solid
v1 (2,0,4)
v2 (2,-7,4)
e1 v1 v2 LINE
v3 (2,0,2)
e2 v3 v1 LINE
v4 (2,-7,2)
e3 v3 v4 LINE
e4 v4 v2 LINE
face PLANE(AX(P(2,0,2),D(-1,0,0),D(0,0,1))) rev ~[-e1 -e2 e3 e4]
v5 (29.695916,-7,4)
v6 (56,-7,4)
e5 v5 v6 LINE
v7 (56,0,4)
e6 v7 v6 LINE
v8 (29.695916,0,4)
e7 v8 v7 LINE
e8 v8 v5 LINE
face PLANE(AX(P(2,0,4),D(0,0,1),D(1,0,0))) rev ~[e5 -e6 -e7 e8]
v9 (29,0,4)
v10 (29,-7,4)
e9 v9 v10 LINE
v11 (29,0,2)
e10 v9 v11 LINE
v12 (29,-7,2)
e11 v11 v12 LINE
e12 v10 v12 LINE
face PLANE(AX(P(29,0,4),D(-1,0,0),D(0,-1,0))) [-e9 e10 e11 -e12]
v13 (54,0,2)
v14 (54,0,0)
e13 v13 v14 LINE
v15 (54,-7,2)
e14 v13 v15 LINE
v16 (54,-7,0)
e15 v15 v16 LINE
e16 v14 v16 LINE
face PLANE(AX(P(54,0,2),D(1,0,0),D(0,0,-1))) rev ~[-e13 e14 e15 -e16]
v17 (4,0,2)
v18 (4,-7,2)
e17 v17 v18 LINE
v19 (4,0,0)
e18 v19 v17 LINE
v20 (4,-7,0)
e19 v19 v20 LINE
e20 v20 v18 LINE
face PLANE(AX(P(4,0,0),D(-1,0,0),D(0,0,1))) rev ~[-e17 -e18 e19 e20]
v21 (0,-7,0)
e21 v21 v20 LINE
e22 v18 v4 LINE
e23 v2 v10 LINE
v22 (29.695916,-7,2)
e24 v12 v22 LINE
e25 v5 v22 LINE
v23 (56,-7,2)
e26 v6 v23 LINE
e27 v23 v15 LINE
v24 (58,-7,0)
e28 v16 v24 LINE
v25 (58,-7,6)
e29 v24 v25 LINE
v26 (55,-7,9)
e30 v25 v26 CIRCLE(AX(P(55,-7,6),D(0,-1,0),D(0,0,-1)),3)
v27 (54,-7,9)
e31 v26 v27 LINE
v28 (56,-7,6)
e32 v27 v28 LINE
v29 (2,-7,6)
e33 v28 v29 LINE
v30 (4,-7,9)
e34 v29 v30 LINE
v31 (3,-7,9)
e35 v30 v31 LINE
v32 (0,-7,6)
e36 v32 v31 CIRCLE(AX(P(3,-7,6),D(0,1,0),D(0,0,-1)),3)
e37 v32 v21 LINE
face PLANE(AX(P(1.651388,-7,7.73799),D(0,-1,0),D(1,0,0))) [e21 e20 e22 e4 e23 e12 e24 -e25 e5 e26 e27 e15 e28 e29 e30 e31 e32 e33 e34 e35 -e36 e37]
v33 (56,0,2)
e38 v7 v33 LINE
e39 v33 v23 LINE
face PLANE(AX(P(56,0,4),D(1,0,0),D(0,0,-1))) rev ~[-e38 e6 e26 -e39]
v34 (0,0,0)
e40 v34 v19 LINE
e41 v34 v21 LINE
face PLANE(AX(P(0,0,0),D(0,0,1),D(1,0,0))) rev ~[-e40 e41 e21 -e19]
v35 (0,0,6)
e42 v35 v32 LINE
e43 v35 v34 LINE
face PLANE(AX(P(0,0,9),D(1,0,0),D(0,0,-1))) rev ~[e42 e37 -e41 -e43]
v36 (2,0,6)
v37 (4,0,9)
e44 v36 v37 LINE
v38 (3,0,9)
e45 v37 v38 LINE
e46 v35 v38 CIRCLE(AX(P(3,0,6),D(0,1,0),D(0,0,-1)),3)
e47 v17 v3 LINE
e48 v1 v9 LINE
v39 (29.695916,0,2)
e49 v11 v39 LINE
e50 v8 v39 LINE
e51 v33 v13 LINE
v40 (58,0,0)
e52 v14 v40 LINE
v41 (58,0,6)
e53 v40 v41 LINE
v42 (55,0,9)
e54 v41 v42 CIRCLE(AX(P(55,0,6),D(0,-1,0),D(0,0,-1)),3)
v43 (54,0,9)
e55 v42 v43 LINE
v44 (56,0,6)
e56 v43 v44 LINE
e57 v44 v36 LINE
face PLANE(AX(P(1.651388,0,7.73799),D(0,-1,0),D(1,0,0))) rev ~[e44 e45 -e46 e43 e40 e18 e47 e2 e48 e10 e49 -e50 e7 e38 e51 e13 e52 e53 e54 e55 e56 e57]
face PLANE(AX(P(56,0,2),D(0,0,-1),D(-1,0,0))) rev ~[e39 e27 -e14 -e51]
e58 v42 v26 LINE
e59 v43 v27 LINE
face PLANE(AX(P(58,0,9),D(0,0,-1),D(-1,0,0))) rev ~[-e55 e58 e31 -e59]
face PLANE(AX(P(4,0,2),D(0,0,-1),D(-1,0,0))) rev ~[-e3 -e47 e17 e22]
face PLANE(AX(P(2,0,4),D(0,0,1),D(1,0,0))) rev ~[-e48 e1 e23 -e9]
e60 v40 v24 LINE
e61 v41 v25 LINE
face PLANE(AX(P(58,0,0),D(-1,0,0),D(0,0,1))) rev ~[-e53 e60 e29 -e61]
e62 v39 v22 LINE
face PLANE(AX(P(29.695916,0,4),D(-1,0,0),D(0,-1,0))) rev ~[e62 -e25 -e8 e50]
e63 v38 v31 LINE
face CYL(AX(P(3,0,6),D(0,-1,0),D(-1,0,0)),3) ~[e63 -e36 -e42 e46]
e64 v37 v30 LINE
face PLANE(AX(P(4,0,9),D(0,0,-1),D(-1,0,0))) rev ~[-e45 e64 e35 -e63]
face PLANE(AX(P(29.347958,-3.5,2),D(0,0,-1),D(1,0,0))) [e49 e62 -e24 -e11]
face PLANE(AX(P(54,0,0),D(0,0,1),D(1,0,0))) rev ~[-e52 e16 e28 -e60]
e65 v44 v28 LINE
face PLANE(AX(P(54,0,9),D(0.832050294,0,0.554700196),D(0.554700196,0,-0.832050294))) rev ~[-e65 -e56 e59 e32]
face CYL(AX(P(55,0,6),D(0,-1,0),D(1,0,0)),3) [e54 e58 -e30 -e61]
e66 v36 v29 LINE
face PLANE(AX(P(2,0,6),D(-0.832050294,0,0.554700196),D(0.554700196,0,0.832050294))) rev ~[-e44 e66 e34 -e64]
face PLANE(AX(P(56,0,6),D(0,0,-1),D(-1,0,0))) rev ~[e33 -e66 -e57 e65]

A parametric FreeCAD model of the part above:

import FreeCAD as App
import Part
import Sketcher
Q = App.Units.Quantity


def edges_at(feature, points):
    """Names of the edges that pass closest to the given points."""
    edges = feature.Shape.Edges
    near = lambda p: min(range(len(edges)), key=lambda i: edges[i].distToShape(Part.Vertex(*p))[0])
    return sorted({f"Edge{near(p) + 1}" for p in points})


def add_polygon(sketch, points):
    """Adds a closed chain of lines whose ends are joined by coincident constraints."""
    first, n = sketch.GeometryCount, len(points)
    for a, b in zip(points, points[1:] + points[:1]):
        sketch.addGeometry(Part.LineSegment(App.Vector(*a, 0), App.Vector(*b, 0)), False)
    for i in range(n):
        sketch.addConstraint(Sketcher.Constraint("Coincident", first + i, 2, first + (i + 1) % n, 1))

doc = App.newDocument("Part")
body = doc.addObject("PartDesign::Body", "Body")

# Sketch on XZ plane
sketch1 = body.newObject("Sketcher::SketchObject", "Sketch")
sketch1.AttachmentSupport = (doc.getObject("XZ_Plane"), [""])
sketch1.MapMode = "FlatFace"
add_polygon(sketch1, [(0, 9), (0, 0), (4, 0), (4, 2), (2, 2), (2, 4), (56, 4), (56, 2), (54, 2), (54, 0), (58, 0), (58, 9), (54, 9), (56, 6), (2, 6), (4, 9)])  # lines 0-15
sketch1.addConstraint(Sketcher.Constraint("Vertical", 0))
sketch1.addConstraint(Sketcher.Constraint("Horizontal", 1))
sketch1.addConstraint(Sketcher.Constraint("Vertical", 2))
sketch1.addConstraint(Sketcher.Constraint("Horizontal", 3))
sketch1.addConstraint(Sketcher.Constraint("Vertical", 4))
sketch1.addConstraint(Sketcher.Constraint("Horizontal", 5))
sketch1.addConstraint(Sketcher.Constraint("Vertical", 6))
sketch1.addConstraint(Sketcher.Constraint("Horizontal", 7))
sketch1.addConstraint(Sketcher.Constraint("Vertical", 8))
sketch1.addConstraint(Sketcher.Constraint("Horizontal", 9))
sketch1.addConstraint(Sketcher.Constraint("Vertical", 10))
sketch1.addConstraint(Sketcher.Constraint("Horizontal", 11))
sketch1.addConstraint(Sketcher.Constraint("Horizontal", 13))
sketch1.addConstraint(Sketcher.Constraint("Horizontal", 15))
sketch1.addConstraint(Sketcher.Constraint("Coincident", 0, 2, -1, 1))
sketch1.addConstraint(Sketcher.Constraint("PointOnObject", 8, 2, -1))
sketch1.addConstraint(Sketcher.Constraint("Horizontal", 3, 2, 6, 2))
sketch1.addConstraint(Sketcher.Constraint("Horizontal", 11, 2, 14, 2))
sketch1.addConstraint(Sketcher.Constraint("Vertical", 8, 2, 11, 2))
sketch1.addConstraint(Sketcher.Constraint("Vertical", 6, 2, 12, 2))
sketch1.addConstraint(Sketcher.Constraint("Vertical", 4, 2, 13, 2))
sketch1.addConstraint(Sketcher.Constraint("Vertical", 2, 2, 14, 2))
sketch1.addConstraint(Sketcher.Constraint("Equal", 3, 7))
sketch1.addConstraint(Sketcher.Constraint("Equal", 1, 9))
sketch1.addConstraint(Sketcher.Constraint("Equal", 7, 2))
sketch1.addConstraint(Sketcher.Constraint("Equal", 2, 4))
sketch1.addConstraint(Sketcher.Constraint("DistanceX", 1, 1, 1, 2, Q("4 mm")))
sketch1.addConstraint(Sketcher.Constraint("DistanceX", 3, 2, 3, 1, Q("2 mm")))
sketch1.addConstraint(Sketcher.Constraint("DistanceX", 5, 1, 5, 2, Q("54 mm")))
sketch1.addConstraint(Sketcher.Constraint("DistanceY", 0, 2, 0, 1, Q("9 mm")))
sketch1.addConstraint(Sketcher.Constraint("DistanceY", -1, 1, 12, 2, Q("6 mm")))
pad1 = body.newObject("PartDesign::Pad", "Pad")
pad1.Profile = sketch1
pad1.Length = 7
doc.recompute()

fillet = body.newObject("PartDesign::Fillet", "Fillet")
fillet.Base = (pad1, edges_at(pad1, [(0, -3.5, 9), (58, -3.5, 9)]))
fillet.Radius = 3

# Sketch on XY plane
sketch2 = body.newObject("Sketcher::SketchObject", "Sketch001")
sketch2.AttachmentSupport = (doc.getObject("XY_Plane"), [""])
sketch2.MapMode = "FlatFace"
sketch2.AttachmentOffset = App.Placement(App.Vector(0, 0, 4), App.Rotation())
add_polygon(sketch2, [(29, -7), (29, 0), (29.695916, 0), (29.695916, -7)])  # lines 0-3
sketch2.addConstraint(Sketcher.Constraint("Vertical", 0))
sketch2.addConstraint(Sketcher.Constraint("Horizontal", 1))
sketch2.addConstraint(Sketcher.Constraint("Vertical", 2))
sketch2.addConstraint(Sketcher.Constraint("Horizontal", 3))
sketch2.addConstraint(Sketcher.Constraint("PointOnObject", 0, 2, -1))
sketch2.addConstraint(Sketcher.Constraint("DistanceY", 0, 1, 0, 2, Q("7 mm")))
sketch2.addConstraint(Sketcher.Constraint("DistanceX", -1, 1, 0, 2, Q("29 mm")))
sketch2.addConstraint(Sketcher.Constraint("DistanceX", 1, 1, 1, 2, Q("0.695917 mm")))
pad2 = body.newObject("PartDesign::Pad", "Pad001")
pad2.Profile = sketch2
pad2.Length = 2
pad2.Reversed = True

doc.recompute()
